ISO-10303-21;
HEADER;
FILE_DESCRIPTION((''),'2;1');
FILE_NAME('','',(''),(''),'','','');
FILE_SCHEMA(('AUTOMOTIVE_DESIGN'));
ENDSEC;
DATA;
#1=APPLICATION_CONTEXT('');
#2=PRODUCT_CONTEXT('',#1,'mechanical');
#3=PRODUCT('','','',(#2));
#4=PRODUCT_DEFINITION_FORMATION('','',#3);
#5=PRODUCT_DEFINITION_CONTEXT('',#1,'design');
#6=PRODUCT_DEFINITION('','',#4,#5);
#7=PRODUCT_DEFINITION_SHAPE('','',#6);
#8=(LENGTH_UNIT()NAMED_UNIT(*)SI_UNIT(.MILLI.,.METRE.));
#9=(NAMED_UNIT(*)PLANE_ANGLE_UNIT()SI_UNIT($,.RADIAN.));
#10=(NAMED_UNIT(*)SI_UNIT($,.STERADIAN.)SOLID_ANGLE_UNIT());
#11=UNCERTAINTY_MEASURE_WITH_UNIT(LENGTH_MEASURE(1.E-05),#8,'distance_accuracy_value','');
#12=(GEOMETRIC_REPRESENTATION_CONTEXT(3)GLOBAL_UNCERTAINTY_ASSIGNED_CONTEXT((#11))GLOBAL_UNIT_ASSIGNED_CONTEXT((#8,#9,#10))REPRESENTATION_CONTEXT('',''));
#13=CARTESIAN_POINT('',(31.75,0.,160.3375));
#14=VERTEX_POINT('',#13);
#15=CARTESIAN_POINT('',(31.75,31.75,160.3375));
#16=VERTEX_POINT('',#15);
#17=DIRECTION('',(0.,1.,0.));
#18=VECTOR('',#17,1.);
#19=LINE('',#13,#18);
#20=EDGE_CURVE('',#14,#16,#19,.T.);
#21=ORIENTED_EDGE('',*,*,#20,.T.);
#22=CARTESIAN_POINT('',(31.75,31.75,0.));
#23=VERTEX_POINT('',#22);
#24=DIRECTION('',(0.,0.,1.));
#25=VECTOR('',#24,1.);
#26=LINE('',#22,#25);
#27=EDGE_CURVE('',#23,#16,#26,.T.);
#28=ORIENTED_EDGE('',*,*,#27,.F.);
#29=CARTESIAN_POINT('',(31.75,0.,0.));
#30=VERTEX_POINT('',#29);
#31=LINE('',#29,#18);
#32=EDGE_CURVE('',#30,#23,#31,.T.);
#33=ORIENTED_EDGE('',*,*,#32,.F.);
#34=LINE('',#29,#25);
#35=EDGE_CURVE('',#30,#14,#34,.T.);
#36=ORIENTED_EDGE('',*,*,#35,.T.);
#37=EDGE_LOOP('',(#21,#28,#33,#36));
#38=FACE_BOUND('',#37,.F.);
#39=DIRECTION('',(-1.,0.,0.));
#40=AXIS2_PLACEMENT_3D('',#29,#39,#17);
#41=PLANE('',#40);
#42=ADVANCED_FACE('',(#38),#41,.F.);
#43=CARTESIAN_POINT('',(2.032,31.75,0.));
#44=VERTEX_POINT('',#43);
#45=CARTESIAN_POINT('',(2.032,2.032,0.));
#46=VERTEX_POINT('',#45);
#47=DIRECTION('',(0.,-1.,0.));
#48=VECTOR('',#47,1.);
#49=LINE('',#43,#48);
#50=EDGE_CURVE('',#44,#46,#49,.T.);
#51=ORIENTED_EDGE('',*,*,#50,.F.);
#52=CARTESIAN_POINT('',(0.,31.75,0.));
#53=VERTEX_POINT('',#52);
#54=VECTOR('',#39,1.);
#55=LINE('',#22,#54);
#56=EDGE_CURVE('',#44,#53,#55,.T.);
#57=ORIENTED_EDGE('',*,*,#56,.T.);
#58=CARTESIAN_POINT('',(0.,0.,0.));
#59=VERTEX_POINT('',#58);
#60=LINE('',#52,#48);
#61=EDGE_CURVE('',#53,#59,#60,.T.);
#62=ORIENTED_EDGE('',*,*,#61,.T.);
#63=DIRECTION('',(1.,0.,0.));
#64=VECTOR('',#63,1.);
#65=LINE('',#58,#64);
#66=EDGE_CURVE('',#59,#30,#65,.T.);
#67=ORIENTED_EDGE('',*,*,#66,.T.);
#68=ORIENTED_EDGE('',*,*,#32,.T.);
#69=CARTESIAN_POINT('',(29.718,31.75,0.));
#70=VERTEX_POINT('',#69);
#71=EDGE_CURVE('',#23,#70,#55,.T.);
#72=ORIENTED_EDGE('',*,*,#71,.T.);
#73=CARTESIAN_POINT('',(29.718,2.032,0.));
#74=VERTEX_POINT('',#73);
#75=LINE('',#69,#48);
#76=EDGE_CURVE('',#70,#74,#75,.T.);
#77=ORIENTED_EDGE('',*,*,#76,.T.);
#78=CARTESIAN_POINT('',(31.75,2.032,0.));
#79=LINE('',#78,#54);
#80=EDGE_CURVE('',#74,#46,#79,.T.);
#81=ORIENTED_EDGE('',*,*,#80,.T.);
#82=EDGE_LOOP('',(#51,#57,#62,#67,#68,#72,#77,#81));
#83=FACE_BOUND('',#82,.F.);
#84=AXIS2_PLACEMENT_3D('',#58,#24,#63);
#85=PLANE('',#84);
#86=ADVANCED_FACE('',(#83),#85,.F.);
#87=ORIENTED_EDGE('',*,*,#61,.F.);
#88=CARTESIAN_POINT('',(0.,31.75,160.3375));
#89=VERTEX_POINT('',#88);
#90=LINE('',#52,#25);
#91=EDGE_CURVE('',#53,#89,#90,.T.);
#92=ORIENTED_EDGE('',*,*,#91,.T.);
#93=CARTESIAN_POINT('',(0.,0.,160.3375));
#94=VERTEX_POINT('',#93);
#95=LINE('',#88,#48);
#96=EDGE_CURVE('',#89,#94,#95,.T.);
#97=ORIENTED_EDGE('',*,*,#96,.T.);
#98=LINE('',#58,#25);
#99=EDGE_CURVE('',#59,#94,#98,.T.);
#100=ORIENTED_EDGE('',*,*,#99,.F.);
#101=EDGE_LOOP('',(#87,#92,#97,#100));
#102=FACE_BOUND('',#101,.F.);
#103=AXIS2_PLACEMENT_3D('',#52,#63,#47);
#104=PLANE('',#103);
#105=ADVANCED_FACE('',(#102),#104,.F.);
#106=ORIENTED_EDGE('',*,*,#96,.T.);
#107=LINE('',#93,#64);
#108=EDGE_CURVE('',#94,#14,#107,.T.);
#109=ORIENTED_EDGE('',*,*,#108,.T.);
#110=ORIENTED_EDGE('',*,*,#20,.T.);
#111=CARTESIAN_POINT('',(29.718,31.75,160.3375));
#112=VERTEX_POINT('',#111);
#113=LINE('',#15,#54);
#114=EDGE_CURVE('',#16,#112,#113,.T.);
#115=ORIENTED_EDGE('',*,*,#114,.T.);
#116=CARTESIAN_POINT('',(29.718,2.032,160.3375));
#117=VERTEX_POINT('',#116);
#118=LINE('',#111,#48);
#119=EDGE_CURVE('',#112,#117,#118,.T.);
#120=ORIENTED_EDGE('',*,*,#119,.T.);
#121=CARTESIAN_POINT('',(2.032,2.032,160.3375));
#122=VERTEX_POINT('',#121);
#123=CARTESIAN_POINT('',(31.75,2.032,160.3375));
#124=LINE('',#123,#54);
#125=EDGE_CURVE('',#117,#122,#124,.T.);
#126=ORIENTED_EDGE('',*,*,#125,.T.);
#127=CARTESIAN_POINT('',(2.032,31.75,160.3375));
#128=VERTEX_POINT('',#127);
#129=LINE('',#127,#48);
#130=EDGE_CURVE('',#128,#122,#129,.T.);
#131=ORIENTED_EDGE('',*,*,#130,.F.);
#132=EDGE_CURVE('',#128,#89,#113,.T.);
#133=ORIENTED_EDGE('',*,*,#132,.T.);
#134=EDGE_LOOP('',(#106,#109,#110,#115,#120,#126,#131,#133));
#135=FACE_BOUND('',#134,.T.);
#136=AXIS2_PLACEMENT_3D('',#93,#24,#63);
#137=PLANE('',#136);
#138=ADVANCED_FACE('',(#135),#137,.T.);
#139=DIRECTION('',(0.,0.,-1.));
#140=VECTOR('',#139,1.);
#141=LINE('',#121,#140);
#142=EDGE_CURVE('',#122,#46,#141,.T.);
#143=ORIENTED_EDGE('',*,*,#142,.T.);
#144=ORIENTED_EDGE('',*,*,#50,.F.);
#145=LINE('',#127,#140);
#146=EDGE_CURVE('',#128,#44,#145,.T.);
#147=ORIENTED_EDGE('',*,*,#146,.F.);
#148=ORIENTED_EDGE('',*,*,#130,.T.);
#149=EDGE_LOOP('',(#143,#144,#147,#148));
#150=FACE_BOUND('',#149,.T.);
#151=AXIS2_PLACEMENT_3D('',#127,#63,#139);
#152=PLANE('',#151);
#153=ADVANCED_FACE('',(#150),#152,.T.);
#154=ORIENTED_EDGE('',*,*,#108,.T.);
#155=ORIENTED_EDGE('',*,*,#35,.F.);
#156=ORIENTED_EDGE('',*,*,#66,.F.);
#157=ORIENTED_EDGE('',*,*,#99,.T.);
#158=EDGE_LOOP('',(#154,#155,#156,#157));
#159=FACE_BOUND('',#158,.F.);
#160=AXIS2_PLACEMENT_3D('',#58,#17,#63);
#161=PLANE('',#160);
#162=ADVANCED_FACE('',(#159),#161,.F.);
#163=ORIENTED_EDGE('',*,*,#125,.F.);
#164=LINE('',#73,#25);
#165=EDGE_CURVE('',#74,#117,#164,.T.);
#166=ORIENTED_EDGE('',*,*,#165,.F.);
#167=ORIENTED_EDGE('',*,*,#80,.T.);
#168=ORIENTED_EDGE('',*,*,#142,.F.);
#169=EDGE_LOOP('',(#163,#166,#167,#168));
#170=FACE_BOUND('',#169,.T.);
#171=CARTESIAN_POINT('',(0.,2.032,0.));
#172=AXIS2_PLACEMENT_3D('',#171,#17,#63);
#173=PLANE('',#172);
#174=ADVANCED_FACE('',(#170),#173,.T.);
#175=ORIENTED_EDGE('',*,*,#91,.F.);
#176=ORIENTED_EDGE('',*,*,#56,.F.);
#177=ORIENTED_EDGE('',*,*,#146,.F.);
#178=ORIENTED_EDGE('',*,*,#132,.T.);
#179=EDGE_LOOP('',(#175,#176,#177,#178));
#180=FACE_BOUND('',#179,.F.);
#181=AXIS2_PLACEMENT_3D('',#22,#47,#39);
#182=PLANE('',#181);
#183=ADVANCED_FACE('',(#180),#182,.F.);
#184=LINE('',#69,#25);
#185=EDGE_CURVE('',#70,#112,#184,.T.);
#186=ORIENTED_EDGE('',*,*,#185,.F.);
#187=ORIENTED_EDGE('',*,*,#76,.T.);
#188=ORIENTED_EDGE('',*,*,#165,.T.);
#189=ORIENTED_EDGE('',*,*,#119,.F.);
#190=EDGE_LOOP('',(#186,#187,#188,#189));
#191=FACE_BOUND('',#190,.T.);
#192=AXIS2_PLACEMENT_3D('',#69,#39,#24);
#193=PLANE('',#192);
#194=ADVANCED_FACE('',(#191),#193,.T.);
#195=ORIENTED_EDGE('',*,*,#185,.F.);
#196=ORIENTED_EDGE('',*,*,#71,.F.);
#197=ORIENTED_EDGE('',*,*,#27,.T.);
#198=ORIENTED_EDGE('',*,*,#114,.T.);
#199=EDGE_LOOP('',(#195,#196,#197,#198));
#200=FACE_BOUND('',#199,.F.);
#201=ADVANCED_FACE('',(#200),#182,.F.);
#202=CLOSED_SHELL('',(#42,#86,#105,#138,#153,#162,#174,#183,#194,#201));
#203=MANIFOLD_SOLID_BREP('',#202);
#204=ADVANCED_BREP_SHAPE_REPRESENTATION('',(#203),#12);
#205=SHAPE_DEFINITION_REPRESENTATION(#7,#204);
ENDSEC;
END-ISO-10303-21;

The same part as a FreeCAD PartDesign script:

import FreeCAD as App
import Part
import Sketcher

V = App.Vector
Q = App.Units.Quantity


def add_polygon(sketch, points):
    """Adds a closed chain of lines whose ends are joined by coincident constraints."""
    first, n = sketch.GeometryCount, len(points)
    for a, b in zip(points, points[1:] + points[:1]):
        sketch.addGeometry(Part.LineSegment(App.Vector(*a, 0), App.Vector(*b, 0)), False)
    for i in range(n):
        sketch.addConstraint(Sketcher.Constraint("Coincident", first + i, 2, first + (i + 1) % n, 1))

doc = App.newDocument("Part")
params = doc.addObject("Spreadsheet::Sheet", "Params")
for row, (alias, value) in enumerate([
    ("sketch1_width", "1.25 in"),
    ("pad1_length", "6.3125 in"),
    ("sketch2_diameter", "0.2 in"),
    ("sketch3_width", "1.09 in"),
    ("sketch3_height", "6.3125 in"),
    ("pocket2_length", "1.17 in"),
], start=1):
    params.set(f"A{row}", alias)
    params.set(f"B{row}", "=" + value)
    params.setAlias(f"B{row}", alias)

body = doc.addObject("PartDesign::Body", "Body")

# Sketch on XY plane
sketch1 = body.newObject("Sketcher::SketchObject", "Sketch")
sketch1.AttachmentSupport = (doc.getObject("XY_Plane"), [""])
sketch1.MapMode = "FlatFace"
add_polygon(sketch1, [(0, 32), (0, 0), (32, 0), (32, 32)])  # lines 0-3
sketch1.addConstraint([
    Sketcher.Constraint("Vertical", 0),
    Sketcher.Constraint("Horizontal", 1),
    Sketcher.Constraint("Vertical", 2),
    Sketcher.Constraint("Horizontal", 3),
    Sketcher.Constraint("Coincident", 0, 2, -1, 1),
    Sketcher.Constraint("Equal", 3, 0),
    Sketcher.Constraint("DistanceX", 1, 1, 1, 2, Q("1.25 in")),
])
sketch1.setExpression("Constraints[10]", "Params.sketch1_width")
pad1 = body.newObject("PartDesign::Pad", "Pad")
pad1.Profile = sketch1
pad1.setExpression("Length", "Params.pad1_length")

# Sketch on XY plane
sketch2 = body.newObject("Sketcher::SketchObject", "Sketch001")
sketch2.AttachmentSupport = (doc.getObject("XY_Plane"), [""])
sketch2.MapMode = "FlatFace"
sketch2.AttachmentOffset = App.Placement(V(0, 0, 6.3125 * 25.4), App.Rotation())
sketch2.addGeometry(Part.Circle(V(15.9, 15.9, 0), V(0, 0, 1), 2.5), False)
sketch2.addConstraint([
    Sketcher.Constraint("Diameter", 0, Q("0.2 in")),
    Sketcher.Constraint("DistanceX", -1, 1, 0, 3, Q("0.625 in")),
    Sketcher.Constraint("DistanceY", -1, 1, 0, 3, Q("0.625 in")),
])
sketch2.setExpression("Constraints[0]", "Params.sketch2_diameter")
pocket1 = body.newObject("PartDesign::Pocket", "Pocket")
pocket1.Profile = sketch2
pocket1.Type = "ThroughAll"

# Sketch on XZ plane
sketch3 = body.newObject("Sketcher::SketchObject", "Sketch002")
sketch3.AttachmentSupport = (doc.getObject("XZ_Plane"), [""])
sketch3.MapMode = "FlatFace"
sketch3.AttachmentOffset = App.Placement(V(0, 0, -1.25 * 25.4), App.Rotation())
add_polygon(sketch3, [(30, 160), (30, 0), (2, 0), (2, 160)])  # lines 0-3
sketch3.addConstraint([
    Sketcher.Constraint("Vertical", 0),
    Sketcher.Constraint("Horizontal", 1),
    Sketcher.Constraint("Vertical", 2),
    Sketcher.Constraint("Horizontal", 3),
    Sketcher.Constraint("PointOnObject", 0, 2, -1),
    Sketcher.Constraint("DistanceX", -1, 1, 1, 2, Q("0.08 in")),
    Sketcher.Constraint("DistanceX", 1, 2, 1, 1, Q("1.09 in")),
    Sketcher.Constraint("DistanceY", 0, 2, 0, 1, Q("6.3125 in")),
])
sketch3.setExpression("Constraints[10]", "Params.sketch3_width")
sketch3.setExpression("Constraints[11]", "Params.sketch3_height")
pocket2 = body.newObject("PartDesign::Pocket", "Pocket001")
pocket2.Profile = sketch3
pocket2.setExpression("Length", "Params.pocket2_length")
pocket2.Reversed = True

doc.recompute()
